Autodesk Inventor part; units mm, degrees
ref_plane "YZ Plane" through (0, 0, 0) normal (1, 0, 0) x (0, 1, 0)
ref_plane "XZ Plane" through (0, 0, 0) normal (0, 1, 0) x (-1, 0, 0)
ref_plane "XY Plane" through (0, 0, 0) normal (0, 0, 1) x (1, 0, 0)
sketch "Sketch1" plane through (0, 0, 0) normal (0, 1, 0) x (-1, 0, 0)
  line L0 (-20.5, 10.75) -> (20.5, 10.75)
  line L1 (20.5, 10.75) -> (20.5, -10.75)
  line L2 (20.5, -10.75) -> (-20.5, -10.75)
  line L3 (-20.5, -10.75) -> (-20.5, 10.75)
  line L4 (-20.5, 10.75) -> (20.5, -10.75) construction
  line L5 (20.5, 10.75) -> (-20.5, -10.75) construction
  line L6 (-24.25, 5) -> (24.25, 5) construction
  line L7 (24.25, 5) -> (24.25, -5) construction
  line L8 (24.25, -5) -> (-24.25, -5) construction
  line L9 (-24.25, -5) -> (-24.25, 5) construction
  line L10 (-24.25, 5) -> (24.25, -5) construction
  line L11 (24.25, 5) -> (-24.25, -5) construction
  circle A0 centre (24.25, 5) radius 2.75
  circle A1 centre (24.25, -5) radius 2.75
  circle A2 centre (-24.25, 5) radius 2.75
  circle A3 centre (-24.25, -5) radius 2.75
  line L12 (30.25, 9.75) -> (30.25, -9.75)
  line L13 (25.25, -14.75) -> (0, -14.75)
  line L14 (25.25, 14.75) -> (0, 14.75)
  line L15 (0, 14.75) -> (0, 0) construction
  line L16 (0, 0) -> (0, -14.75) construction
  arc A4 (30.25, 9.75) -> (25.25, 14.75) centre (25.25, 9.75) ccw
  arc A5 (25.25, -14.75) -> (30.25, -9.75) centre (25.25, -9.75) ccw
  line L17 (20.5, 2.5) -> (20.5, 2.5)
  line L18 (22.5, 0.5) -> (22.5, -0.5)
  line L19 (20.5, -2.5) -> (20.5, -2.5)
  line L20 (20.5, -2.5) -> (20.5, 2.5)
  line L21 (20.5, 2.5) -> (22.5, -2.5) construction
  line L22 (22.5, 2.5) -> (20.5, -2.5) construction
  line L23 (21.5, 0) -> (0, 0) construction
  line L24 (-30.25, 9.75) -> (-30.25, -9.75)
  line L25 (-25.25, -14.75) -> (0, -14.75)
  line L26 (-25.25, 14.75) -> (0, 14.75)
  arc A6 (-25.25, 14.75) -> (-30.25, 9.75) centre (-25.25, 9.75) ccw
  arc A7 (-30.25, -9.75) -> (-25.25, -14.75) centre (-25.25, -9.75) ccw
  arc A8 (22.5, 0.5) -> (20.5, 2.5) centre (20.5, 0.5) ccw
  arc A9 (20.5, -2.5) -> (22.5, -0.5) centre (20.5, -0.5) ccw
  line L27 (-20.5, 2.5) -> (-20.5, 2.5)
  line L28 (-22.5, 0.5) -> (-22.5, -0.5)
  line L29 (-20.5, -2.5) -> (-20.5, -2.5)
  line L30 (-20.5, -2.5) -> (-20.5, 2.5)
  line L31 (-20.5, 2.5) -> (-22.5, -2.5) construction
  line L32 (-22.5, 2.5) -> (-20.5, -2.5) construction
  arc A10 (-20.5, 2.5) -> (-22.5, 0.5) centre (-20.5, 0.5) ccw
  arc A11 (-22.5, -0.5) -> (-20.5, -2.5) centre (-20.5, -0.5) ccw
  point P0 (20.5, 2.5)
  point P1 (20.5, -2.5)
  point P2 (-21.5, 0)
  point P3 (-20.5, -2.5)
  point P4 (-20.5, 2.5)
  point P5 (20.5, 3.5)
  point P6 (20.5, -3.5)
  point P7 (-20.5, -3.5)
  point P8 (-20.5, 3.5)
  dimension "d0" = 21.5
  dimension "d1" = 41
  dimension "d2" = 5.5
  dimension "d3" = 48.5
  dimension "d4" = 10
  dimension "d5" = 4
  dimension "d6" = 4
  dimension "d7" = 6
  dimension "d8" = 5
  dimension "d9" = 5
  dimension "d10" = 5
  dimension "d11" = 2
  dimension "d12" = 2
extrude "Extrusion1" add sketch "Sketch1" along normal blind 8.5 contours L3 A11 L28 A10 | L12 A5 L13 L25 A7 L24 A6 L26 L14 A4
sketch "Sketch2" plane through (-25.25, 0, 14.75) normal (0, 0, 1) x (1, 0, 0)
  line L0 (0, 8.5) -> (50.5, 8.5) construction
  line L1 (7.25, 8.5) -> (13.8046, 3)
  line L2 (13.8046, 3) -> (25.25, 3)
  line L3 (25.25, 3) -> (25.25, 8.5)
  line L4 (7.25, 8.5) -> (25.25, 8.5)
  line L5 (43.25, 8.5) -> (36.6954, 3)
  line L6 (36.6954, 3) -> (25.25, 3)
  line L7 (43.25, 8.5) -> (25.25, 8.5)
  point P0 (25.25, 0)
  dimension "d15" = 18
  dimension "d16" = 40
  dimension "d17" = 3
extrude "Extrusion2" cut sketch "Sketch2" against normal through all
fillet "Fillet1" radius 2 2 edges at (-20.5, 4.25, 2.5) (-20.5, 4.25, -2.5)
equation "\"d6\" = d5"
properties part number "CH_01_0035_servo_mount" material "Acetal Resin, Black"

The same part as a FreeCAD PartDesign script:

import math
import FreeCAD as App
import Part
import Sketcher
Q = App.Units.Quantity


def edges_at(feature, points):
    """Names of the edges that pass closest to the given points."""
    edges = feature.Shape.Edges
    near = lambda p: min(range(len(edges)), key=lambda i: edges[i].distToShape(Part.Vertex(*p))[0])
    return sorted({f"Edge{near(p) + 1}" for p in points})


def add_polygon(sketch, points):
    """Adds a closed chain of lines whose ends are joined by coincident constraints."""
    first, n = sketch.GeometryCount, len(points)
    for a, b in zip(points, points[1:] + points[:1]):
        sketch.addGeometry(Part.LineSegment(App.Vector(*a, 0), App.Vector(*b, 0)), False)
    for i in range(n):
        sketch.addConstraint(Sketcher.Constraint("Coincident", first + i, 2, first + (i + 1) % n, 1))

doc = App.newDocument("Part")
body = doc.addObject("PartDesign::Body", "Body")

# Sketch on XZ plane
sketch1 = body.newObject("Sketcher::SketchObject", "Sketch")
sketch1.AttachmentSupport = (doc.getObject("XZ_Plane"), [""])
sketch1.MapMode = "FlatFace"
sketch1.addGeometry([
    Part.LineSegment(App.Vector(-30.2, -9.8, 0), App.Vector(-30.2, 9.8, 0)),  # 0
    Part.ArcOfCircle(Part.Circle(App.Vector(-25.2, 9.8, 0), App.Vector(0, 0, 1), 5), math.radians(90), math.radians(180)),  # 1
    Part.LineSegment(App.Vector(-25.2, 14.8, 0), App.Vector(25.2, 14.8, 0)),  # 2
    Part.ArcOfCircle(Part.Circle(App.Vector(25.2, 9.8, 0), App.Vector(0, 0, 1), 5), math.radians(0), math.radians(90)),  # 3
    Part.LineSegment(App.Vector(30.2, 9.8, 0), App.Vector(30.2, -9.8, 0)),  # 4
    Part.ArcOfCircle(Part.Circle(App.Vector(25.2, -9.8, 0), App.Vector(0, 0, 1), 5), math.radians(-90), math.radians(0)),  # 5
    Part.LineSegment(App.Vector(25.2, -14.8, 0), App.Vector(-25.2, -14.8, 0)),  # 6
    Part.ArcOfCircle(Part.Circle(App.Vector(-25.2, -9.8, 0), App.Vector(0, 0, 1), 5), math.radians(180), math.radians(270)),  # 7
    Part.LineSegment(App.Vector(20.5, 10.8, 0), App.Vector(-20.5, 10.8, 0)),  # 8
    Part.LineSegment(App.Vector(-20.5, 10.8, 0), App.Vector(-20.5, 2.5, 0)),  # 9
    Part.ArcOfCircle(Part.Circle(App.Vector(-20.5, 0.5, 0), App.Vector(0, 0, 1), 2), math.radians(90), math.radians(180)),  # 10
    Part.LineSegment(App.Vector(-22.5, 0.5, 0), App.Vector(-22.5, -0.5, 0)),  # 11
    Part.ArcOfCircle(Part.Circle(App.Vector(-20.5, -0.5, 0), App.Vector(0, 0, 1), 2), math.radians(180), math.radians(270)),  # 12
    Part.LineSegment(App.Vector(-20.5, -2.5, 0), App.Vector(-20.5, -10.8, 0)),  # 13
    Part.LineSegment(App.Vector(-20.5, -10.8, 0), App.Vector(20.5, -10.8, 0)),  # 14
    Part.LineSegment(App.Vector(20.5, -10.8, 0), App.Vector(20.5, 10.8, 0)),  # 15
    Part.Circle(App.Vector(24.2, -5, 0), App.Vector(0, 0, 1), 2.8),  # 16
    Part.Circle(App.Vector(-24.2, -5, 0), App.Vector(0, 0, 1), 2.8),  # 17
    Part.Circle(App.Vector(24.2, 5, 0), App.Vector(0, 0, 1), 2.8),  # 18
    Part.Circle(App.Vector(-24.2, 5, 0), App.Vector(0, 0, 1), 2.8),  # 19
], False)
sketch1.addConstraint([
    Sketcher.Constraint("Tangent", 0, 2, 1, 2),
    Sketcher.Constraint("Tangent", 1, 1, 2, 1),
    Sketcher.Constraint("Tangent", 2, 2, 3, 2),
    Sketcher.Constraint("Tangent", 3, 1, 4, 1),
    Sketcher.Constraint("Tangent", 4, 2, 5, 2),
    Sketcher.Constraint("Tangent", 5, 1, 6, 1),
    Sketcher.Constraint("Tangent", 6, 2, 7, 2),
    Sketcher.Constraint("Tangent", 7, 1, 0, 1),
    Sketcher.Constraint("Coincident", 8, 2, 9, 1),
    Sketcher.Constraint("Coincident", 9, 2, 10, 1),
    Sketcher.Constraint("Tangent", 10, 2, 11, 1),
    Sketcher.Constraint("Tangent", 11, 2, 12, 1),
    Sketcher.Constraint("Coincident", 12, 2, 13, 1),
    Sketcher.Constraint("Coincident", 13, 2, 14, 1),
    Sketcher.Constraint("Coincident", 14, 2, 15, 1),
    Sketcher.Constraint("Coincident", 15, 2, 8, 1),
    Sketcher.Constraint("Vertical", 0),
    Sketcher.Constraint("Horizontal", 2),
    Sketcher.Constraint("Vertical", 4),
    Sketcher.Constraint("Horizontal", 6),
    Sketcher.Constraint("Horizontal", 8),
    Sketcher.Constraint("Vertical", 9),
    Sketcher.Constraint("Vertical", 11),
    Sketcher.Constraint("Vertical", 13),
    Sketcher.Constraint("Horizontal", 14),
    Sketcher.Constraint("Vertical", 15),
    Sketcher.Constraint("Equal", 1, 3),
    Sketcher.Constraint("Equal", 3, 5),
    Sketcher.Constraint("Equal", 5, 7),
    Sketcher.Constraint("Equal", 10, 12),
    Sketcher.Constraint("Equal", 16, 17),
    Sketcher.Constraint("Equal", 17, 18),
    Sketcher.Constraint("Equal", 18, 19),
    Sketcher.Constraint("Symmetric", 1, 3, 5, 3, -1, 1),
    Sketcher.Constraint("Symmetric", 17, 3, 18, 3, -1, 1),
    Sketcher.Constraint("Symmetric", 16, 3, 19, 3, -1, 1),
    Sketcher.Constraint("Symmetric", 8, 2, 14, 2, -1, 1),
    Sketcher.Constraint("Symmetric", 16, 3, 17, 3, -2),
    Sketcher.Constraint("Symmetric", 9, 2, 12, 2, -1),
    Sketcher.Constraint("Vertical", 12, 3, 8, 2),
    Sketcher.Constraint("Radius", 1, Q("5 mm")),
    Sketcher.Constraint("Radius", 10, Q("2 mm")),
    Sketcher.Constraint("Diameter", 16, Q("5.5 mm")),
    Sketcher.Constraint("DistanceX", 8, 2, 8, 1, Q("41 mm")),
    Sketcher.Constraint("DistanceY", 15, 1, 15, 2, Q("21.5 mm")),
    Sketcher.Constraint("DistanceY", 16, 3, -1, 1, Q("5 mm")),
    Sketcher.Constraint("DistanceX", 0, 2, 19, 3, Q("6 mm")),
    Sketcher.Constraint("DistanceY", 8, 2, 1, 1, Q("4 mm")),
    Sketcher.Constraint("DistanceY", 16, 3, 10, 3, Q("5.5 mm")),
    Sketcher.Constraint("DistanceX", 17, 3, 16, 3, Q("48.5 mm")),
])
pad1 = body.newObject("PartDesign::Pad", "Pad")
pad1.Profile = sketch1
pad1.Length = 8.5
pad1.Reversed = True

# Sketch on XY plane
sketch2 = body.newObject("Sketcher::SketchObject", "Sketch001")
sketch2.AttachmentSupport = (doc.getObject("XY_Plane"), [""])
sketch2.MapMode = "FlatFace"
sketch2.AttachmentOffset = App.Placement(App.Vector(0, 0, 14.75), App.Rotation())
add_polygon(sketch2, [(-18, 8), (-11, 3), (11, 3), (18, 8)])  # lines 0-3
sketch2.addConstraint([
    Sketcher.Constraint("Horizontal", 1),
    Sketcher.Constraint("Horizontal", 3),
    Sketcher.Constraint("Equal", 0, 2),
    Sketcher.Constraint("Angle", 0, Q("-40.0002 deg")),
    Sketcher.Constraint("DistanceY", -1, 1, 0, 2, Q("3 mm")),
    Sketcher.Constraint("DistanceX", -1, 1, 2, 2, Q("18 mm")),
    Sketcher.Constraint("DistanceX", 3, 2, -1, 1, Q("18 mm")),
    Sketcher.Constraint("DistanceY", -1, 1, 2, 2, Q("8.5 mm")),
])
pocket1 = body.newObject("PartDesign::Pocket", "Pocket")
pocket1.Profile = sketch2
pocket1.Type = "ThroughAll"
doc.recompute()

fillet = body.newObject("PartDesign::Fillet", "Fillet")
fillet.Base = (pocket1, edges_at(pocket1, [(-20.5, 4.25, 2.5), (-20.5, 4.25, -2.5)]))
fillet.Radius = 2

doc.recompute()
